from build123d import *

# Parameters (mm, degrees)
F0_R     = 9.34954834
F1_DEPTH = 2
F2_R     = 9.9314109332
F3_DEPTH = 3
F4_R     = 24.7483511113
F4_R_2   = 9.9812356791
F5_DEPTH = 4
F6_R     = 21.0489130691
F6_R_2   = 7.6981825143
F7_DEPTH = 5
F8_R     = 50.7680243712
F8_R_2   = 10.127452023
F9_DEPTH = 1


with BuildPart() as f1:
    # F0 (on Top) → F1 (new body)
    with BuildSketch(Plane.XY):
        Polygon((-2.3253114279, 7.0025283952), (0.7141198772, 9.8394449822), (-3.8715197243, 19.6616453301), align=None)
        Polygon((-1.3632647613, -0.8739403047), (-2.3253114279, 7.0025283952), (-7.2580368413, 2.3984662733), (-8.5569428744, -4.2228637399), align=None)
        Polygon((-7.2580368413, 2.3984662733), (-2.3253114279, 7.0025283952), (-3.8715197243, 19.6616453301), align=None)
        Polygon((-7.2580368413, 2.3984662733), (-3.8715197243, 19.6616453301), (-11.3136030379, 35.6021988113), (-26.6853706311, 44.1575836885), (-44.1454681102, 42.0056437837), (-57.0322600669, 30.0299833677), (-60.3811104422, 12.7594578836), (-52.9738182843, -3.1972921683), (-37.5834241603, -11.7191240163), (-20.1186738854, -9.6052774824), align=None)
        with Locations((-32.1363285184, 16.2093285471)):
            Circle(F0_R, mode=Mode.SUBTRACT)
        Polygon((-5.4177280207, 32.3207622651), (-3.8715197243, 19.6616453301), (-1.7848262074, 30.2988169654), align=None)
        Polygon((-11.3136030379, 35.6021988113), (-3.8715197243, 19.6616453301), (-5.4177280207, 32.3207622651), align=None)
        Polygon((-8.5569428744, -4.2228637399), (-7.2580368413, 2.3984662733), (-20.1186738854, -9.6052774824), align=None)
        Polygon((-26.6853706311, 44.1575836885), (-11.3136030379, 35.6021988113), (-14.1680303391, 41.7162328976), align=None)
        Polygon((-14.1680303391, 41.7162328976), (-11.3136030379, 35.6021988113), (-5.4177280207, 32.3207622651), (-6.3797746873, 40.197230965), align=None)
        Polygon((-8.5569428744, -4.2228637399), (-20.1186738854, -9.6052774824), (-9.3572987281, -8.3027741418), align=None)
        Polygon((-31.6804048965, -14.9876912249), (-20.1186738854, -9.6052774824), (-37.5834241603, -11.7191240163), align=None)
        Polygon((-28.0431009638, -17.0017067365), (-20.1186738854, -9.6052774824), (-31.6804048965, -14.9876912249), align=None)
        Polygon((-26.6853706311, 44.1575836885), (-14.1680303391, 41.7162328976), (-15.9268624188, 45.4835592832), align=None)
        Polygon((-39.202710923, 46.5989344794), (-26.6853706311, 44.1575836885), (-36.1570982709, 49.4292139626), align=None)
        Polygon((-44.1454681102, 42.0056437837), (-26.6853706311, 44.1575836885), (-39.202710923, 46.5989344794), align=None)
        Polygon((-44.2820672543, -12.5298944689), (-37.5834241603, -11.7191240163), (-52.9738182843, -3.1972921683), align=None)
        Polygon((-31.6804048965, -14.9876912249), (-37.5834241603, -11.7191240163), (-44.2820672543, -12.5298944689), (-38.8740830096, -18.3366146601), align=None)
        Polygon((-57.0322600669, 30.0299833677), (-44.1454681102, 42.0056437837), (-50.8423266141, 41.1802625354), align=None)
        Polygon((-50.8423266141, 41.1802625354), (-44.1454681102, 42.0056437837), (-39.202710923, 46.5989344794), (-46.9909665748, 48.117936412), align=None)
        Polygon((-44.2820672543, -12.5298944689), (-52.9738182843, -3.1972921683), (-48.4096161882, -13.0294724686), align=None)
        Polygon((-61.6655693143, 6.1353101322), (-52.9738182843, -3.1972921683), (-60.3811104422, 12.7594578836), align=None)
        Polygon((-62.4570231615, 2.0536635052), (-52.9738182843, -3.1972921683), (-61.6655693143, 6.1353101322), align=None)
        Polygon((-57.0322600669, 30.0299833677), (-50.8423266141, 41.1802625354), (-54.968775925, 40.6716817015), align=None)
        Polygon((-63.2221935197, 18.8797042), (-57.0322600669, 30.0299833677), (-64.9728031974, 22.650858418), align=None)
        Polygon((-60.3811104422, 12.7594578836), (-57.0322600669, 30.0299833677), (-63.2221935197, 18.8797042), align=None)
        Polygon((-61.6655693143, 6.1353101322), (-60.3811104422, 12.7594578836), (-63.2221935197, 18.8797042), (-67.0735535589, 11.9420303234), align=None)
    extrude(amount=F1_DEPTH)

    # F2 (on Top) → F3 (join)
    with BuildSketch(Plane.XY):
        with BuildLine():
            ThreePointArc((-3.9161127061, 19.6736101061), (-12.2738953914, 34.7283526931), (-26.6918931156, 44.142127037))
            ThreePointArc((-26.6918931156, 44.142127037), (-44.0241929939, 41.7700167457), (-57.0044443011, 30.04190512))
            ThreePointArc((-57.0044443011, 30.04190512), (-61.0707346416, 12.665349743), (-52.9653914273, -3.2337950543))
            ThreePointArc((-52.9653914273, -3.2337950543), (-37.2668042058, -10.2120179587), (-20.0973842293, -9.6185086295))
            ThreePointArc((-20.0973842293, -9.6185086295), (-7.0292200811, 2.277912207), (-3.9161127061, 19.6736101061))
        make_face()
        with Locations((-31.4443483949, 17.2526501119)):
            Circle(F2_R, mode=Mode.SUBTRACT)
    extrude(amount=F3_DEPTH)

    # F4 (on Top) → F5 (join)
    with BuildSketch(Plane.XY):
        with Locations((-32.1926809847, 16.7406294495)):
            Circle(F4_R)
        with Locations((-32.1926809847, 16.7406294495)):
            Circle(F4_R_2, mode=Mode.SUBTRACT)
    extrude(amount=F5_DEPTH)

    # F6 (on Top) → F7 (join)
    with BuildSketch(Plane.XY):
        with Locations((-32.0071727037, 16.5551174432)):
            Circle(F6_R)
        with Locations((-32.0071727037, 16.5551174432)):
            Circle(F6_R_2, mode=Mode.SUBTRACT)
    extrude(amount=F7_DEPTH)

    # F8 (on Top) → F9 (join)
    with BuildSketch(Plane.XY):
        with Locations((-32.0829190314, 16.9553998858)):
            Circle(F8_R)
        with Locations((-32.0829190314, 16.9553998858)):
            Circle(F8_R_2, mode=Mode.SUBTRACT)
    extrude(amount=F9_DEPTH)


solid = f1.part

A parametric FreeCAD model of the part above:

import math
import FreeCAD as App
import Part
import Sketcher

doc = App.newDocument("Part")
params = doc.addObject("Spreadsheet::Sheet", "Params")
for row, (alias, value) in enumerate([
    ("pad1_length", "2 mm"),
    ("pad2_length", "3 mm"),
    ("pad3_length", "4 mm"),
    ("pad4_length", "5 mm"),
    ("pad5_length", "1 mm"),
], start=1):
    params.set(f"A{row}", alias)
    params.set(f"B{row}", "=" + value)
    params.setAlias(f"B{row}", alias)

body = doc.addObject("PartDesign::Body", "Body")

sketch1 = doc.addObject("Sketcher::SketchObject", "Sketch")
body.addObject(sketch1)
sketch1.AttachmentSupport = (doc.XY_Plane, [""])
sketch1.MapMode = "FlatFace"
sketch1.addGeometry([
    Part.LineSegment(App.Vector(-2.325311, 7.002528, 0), App.Vector(0.71412, 9.839445, 0)),
    Part.LineSegment(App.Vector(0.71412, 9.839445, 0), App.Vector(-3.87152, 19.661645, 0)),
    Part.LineSegment(App.Vector(-3.87152, 19.661645, 0), App.Vector(-1.784826, 30.298817, 0)),
    Part.LineSegment(App.Vector(-1.784826, 30.298817, 0), App.Vector(-5.417728, 32.320762, 0)),
    Part.LineSegment(App.Vector(-5.417728, 32.320762, 0), App.Vector(-6.379775, 40.197231, 0)),
    Part.LineSegment(App.Vector(-6.379775, 40.197231, 0), App.Vector(-14.16803, 41.716233, 0)),
    Part.LineSegment(App.Vector(-14.16803, 41.716233, 0), App.Vector(-15.926862, 45.483559, 0)),
    Part.LineSegment(App.Vector(-15.926862, 45.483559, 0), App.Vector(-26.685371, 44.157584, 0)),
    Part.LineSegment(App.Vector(-26.685371, 44.157584, 0), App.Vector(-36.157098, 49.429214, 0)),
    Part.LineSegment(App.Vector(-36.157098, 49.429214, 0), App.Vector(-39.202711, 46.598934, 0)),
    Part.LineSegment(App.Vector(-39.202711, 46.598934, 0), App.Vector(-46.990967, 48.117936, 0)),
    Part.LineSegment(App.Vector(-46.990967, 48.117936, 0), App.Vector(-50.842327, 41.180263, 0)),
    Part.LineSegment(App.Vector(-50.842327, 41.180263, 0), App.Vector(-54.968776, 40.671682, 0)),
    Part.LineSegment(App.Vector(-54.968776, 40.671682, 0), App.Vector(-57.03226, 30.029983, 0)),
    Part.LineSegment(App.Vector(-57.03226, 30.029983, 0), App.Vector(-64.972803, 22.650858, 0)),
    Part.LineSegment(App.Vector(-64.972803, 22.650858, 0), App.Vector(-63.222194, 18.879704, 0)),
    Part.LineSegment(App.Vector(-63.222194, 18.879704, 0), App.Vector(-67.073554, 11.94203, 0)),
    Part.LineSegment(App.Vector(-67.073554, 11.94203, 0), App.Vector(-61.665569, 6.13531, 0)),
    Part.LineSegment(App.Vector(-61.665569, 6.13531, 0), App.Vector(-62.457023, 2.053664, 0)),
    Part.LineSegment(App.Vector(-62.457023, 2.053664, 0), App.Vector(-52.973818, -3.197292, 0)),
    Part.LineSegment(App.Vector(-52.973818, -3.197292, 0), App.Vector(-48.409616, -13.029472, 0)),
    Part.LineSegment(App.Vector(-48.409616, -13.029472, 0), App.Vector(-44.282067, -12.529894, 0)),
    Part.LineSegment(App.Vector(-44.282067, -12.529894, 0), App.Vector(-38.874083, -18.336615, 0)),
    Part.LineSegment(App.Vector(-38.874083, -18.336615, 0), App.Vector(-31.680405, -14.987691, 0)),
    Part.LineSegment(App.Vector(-31.680405, -14.987691, 0), App.Vector(-28.043101, -17.001707, 0)),
    Part.LineSegment(App.Vector(-28.043101, -17.001707, 0), App.Vector(-20.118674, -9.605277, 0)),
    Part.LineSegment(App.Vector(-20.118674, -9.605277, 0), App.Vector(-9.357299, -8.302774, 0)),
    Part.LineSegment(App.Vector(-9.357299, -8.302774, 0), App.Vector(-8.556943, -4.222864, 0)),
    Part.LineSegment(App.Vector(-8.556943, -4.222864, 0), App.Vector(-1.363265, -0.87394, 0)),
    Part.LineSegment(App.Vector(-1.363265, -0.87394, 0), App.Vector(-2.325311, 7.002528, 0)),
    Part.Circle(App.Vector(-32.136329, 16.209329, 0), App.Vector(0, 0, 1), 9.349548),
], False)
sketch1.addConstraint([
    Sketcher.Constraint("Coincident", 0, 2, 1, 1),
    Sketcher.Constraint("Coincident", 1, 2, 2, 1),
    Sketcher.Constraint("Coincident", 2, 2, 3, 1),
    Sketcher.Constraint("Coincident", 3, 2, 4, 1),
    Sketcher.Constraint("Coincident", 4, 2, 5, 1),
    Sketcher.Constraint("Coincident", 5, 2, 6, 1),
    Sketcher.Constraint("Coincident", 6, 2, 7, 1),
    Sketcher.Constraint("Coincident", 7, 2, 8, 1),
    Sketcher.Constraint("Coincident", 8, 2, 9, 1),
    Sketcher.Constraint("Coincident", 9, 2, 10, 1),
    Sketcher.Constraint("Coincident", 10, 2, 11, 1),
    Sketcher.Constraint("Coincident", 11, 2, 12, 1),
    Sketcher.Constraint("Coincident", 12, 2, 13, 1),
    Sketcher.Constraint("Coincident", 13, 2, 14, 1),
    Sketcher.Constraint("Coincident", 14, 2, 15, 1),
    Sketcher.Constraint("Coincident", 15, 2, 16, 1),
    Sketcher.Constraint("Coincident", 16, 2, 17, 1),
    Sketcher.Constraint("Coincident", 17, 2, 18, 1),
    Sketcher.Constraint("Coincident", 18, 2, 19, 1),
    Sketcher.Constraint("Coincident", 19, 2, 20, 1),
    Sketcher.Constraint("Coincident", 20, 2, 21, 1),
    Sketcher.Constraint("Coincident", 21, 2, 22, 1),
    Sketcher.Constraint("Coincident", 22, 2, 23, 1),
    Sketcher.Constraint("Coincident", 23, 2, 24, 1),
    Sketcher.Constraint("Coincident", 24, 2, 25, 1),
    Sketcher.Constraint("Coincident", 25, 2, 26, 1),
    Sketcher.Constraint("Coincident", 26, 2, 27, 1),
    Sketcher.Constraint("Coincident", 27, 2, 28, 1),
    Sketcher.Constraint("Coincident", 28, 2, 29, 1),
    Sketcher.Constraint("Coincident", 29, 2, 0, 1),
    Sketcher.Constraint("Parallel", 1, 6),
    Sketcher.Constraint("Parallel", 3, 8),
    Sketcher.Constraint("Parallel", 5, 10),
    Sketcher.Constraint("Parallel", 7, 12),
    Sketcher.Constraint("Parallel", 9, 14),
    Sketcher.Constraint("Parallel", 11, 16),
    Sketcher.Constraint("Parallel", 13, 18),
    Sketcher.Constraint("Parallel", 15, 20),
    Sketcher.Constraint("Parallel", 17, 22),
    Sketcher.Constraint("Parallel", 19, 24),
    Sketcher.Constraint("Parallel", 0, 25),
    Sketcher.Constraint("Parallel", 21, 26),
    Sketcher.Constraint("Parallel", 2, 27),
    Sketcher.Constraint("Parallel", 23, 28),
    Sketcher.Constraint("Parallel", 4, 29),
    Sketcher.Constraint("Equal", 1, 2),
    Sketcher.Constraint("Equal", 0, 3),
    Sketcher.Constraint("Equal", 4, 5),
    Sketcher.Constraint("Equal", 3, 6),
    Sketcher.Constraint("Equal", 2, 7),
    Sketcher.Constraint("Equal", 7, 8),
    Sketcher.Constraint("Equal", 6, 9),
    Sketcher.Constraint("Equal", 5, 10),
    Sketcher.Constraint("Equal", 10, 11),
    Sketcher.Constraint("Equal", 9, 12),
    Sketcher.Constraint("Equal", 8, 13),
    Sketcher.Constraint("Equal", 13, 14),
    Sketcher.Constraint("Equal", 12, 15),
    Sketcher.Constraint("Equal", 11, 16),
    Sketcher.Constraint("Equal", 16, 17),
    Sketcher.Constraint("Equal", 15, 18),
    Sketcher.Constraint("Equal", 14, 19),
    Sketcher.Constraint("Equal", 19, 20),
    Sketcher.Constraint("Equal", 18, 21),
    Sketcher.Constraint("Equal", 17, 22),
    Sketcher.Constraint("Equal", 22, 23),
    Sketcher.Constraint("Equal", 21, 24),
    Sketcher.Constraint("Equal", 20, 25),
    Sketcher.Constraint("Equal", 25, 26),
    Sketcher.Constraint("Equal", 24, 27),
    Sketcher.Constraint("Equal", 23, 28),
    Sketcher.Constraint("Equal", 28, 29),
    Sketcher.Constraint("Diameter", 30, 18.699097),
    Sketcher.Constraint("DistanceY", 4, 2, 5, 2, 1.519002),
    Sketcher.Constraint("DistanceX", 11, 2, 30, 3, 18.705998),
    Sketcher.Constraint("DistanceX", 8, 2, -1, 1, 36.157098),
    Sketcher.Constraint("DistanceX", 24, 2, -1, 1, 28.043101),
    Sketcher.Constraint("DistanceX", 26, 2, -1, 1, 9.357299),
    Sketcher.Constraint("DistanceY", 0, 2, 1, 2, 9.8222),
    Sketcher.Constraint("DistanceX", 3, 2, 2, 2, 3.632902),
    Sketcher.Constraint("DistanceX", 30, 3, 3, 2, 26.7186),
    Sketcher.Constraint("DistanceX", 30, 3, 5, 2, 17.968298),
    Sketcher.Constraint("DistanceY", 5, 2, 9, 2, 4.882702),
    Sketcher.Constraint("DistanceY", 12, 2, 7, 2, 3.485902),
    Sketcher.Constraint("DistanceY", 13, 2, 12, 2, 10.641698),
    Sketcher.Constraint("DistanceY", 20, 2, 30, 3, 29.238801),
    Sketcher.Constraint("DistanceY", 23, 2, 19, 2, 11.790399),
    Sketcher.Constraint("DistanceX", 30, 3, -1, 1, 32.136329),
    Sketcher.Constraint("DistanceY", -1, 1, 30, 3, 16.209329),
    Sketcher.Constraint("DistanceX", -1, 1, 0, 2, 0.71412),
    Sketcher.Constraint("DistanceX", 1, 2, -1, 1, 3.87152),
    Sketcher.Constraint("DistanceY", -1, 1, 4, 2, 40.197231),
    Sketcher.Constraint("DistanceX", 9, 2, -1, 1, 39.202711),
])
pad1 = doc.addObject("PartDesign::Pad", "Pad")
body.addObject(pad1)
pad1.Profile = sketch1
pad1.setExpression("Length", "Params.pad1_length")

sketch2 = doc.addObject("Sketcher::SketchObject", "Sketch001")
body.addObject(sketch2)
sketch2.AttachmentSupport = (doc.XY_Plane, [""])
sketch2.MapMode = "FlatFace"
sketch2.addGeometry([
    Part.ArcOfCircle(Part.Circle(App.Vector(-38.487261, 10.328433, 0), App.Vector(0, 0, 1), 35.811962), math.radians(15.126515), math.radians(70.769489)),
    Part.ArcOfCircle(Part.Circle(App.Vector(-31.515338, 14.878573, 0), App.Vector(0, 0, 1), 29.658408), math.radians(80.640225), math.radians(149.251815)),
    Part.ArcOfCircle(Part.Circle(App.Vector(-35.284942, 15.795267, 0), App.Vector(0, 0, 1), 25.975055), math.radians(146.737625), math.radians(227.103952)),
    Part.ArcOfCircle(Part.Circle(App.Vector(-29.970272, 27.349962, 0), App.Vector(0, 0, 1), 38.264105), math.radians(-126.93854), math.radians(-75.047418)),
    Part.ArcOfCircle(Part.Circle(App.Vector(-31.065531, 15.555821, 0), App.Vector(0, 0, 1), 27.459918), math.radians(-66.457833), math.radians(8.624397)),
    Part.Circle(App.Vector(-31.444348, 17.25265, 0), App.Vector(0, 0, 1), 9.931411),
], False)
sketch2.addConstraint([
    Sketcher.Constraint("Coincident", 0, 2, 1, 1),
    Sketcher.Constraint("Coincident", 1, 2, 2, 1),
    Sketcher.Constraint("Coincident", 2, 2, 3, 1),
    Sketcher.Constraint("Coincident", 3, 2, 4, 1),
    Sketcher.Constraint("Coincident", 4, 2, 0, 1),
    Sketcher.Constraint("Diameter", 5, 19.862822),
    Sketcher.Constraint("Radius", 1, 29.658408),
    Sketcher.Constraint("Radius", 4, 27.459918),
    Sketcher.Constraint("Radius", 0, 35.811962),
    Sketcher.Constraint("Radius", 2, 25.975055),
    Sketcher.Constraint("Radius", 3, 38.264105),
    Sketcher.Constraint("DistanceX", 0, 3, -1, 1, 38.487261),
    Sketcher.Constraint("DistanceX", 2, 3, -1, 1, 35.284942),
    Sketcher.Constraint("DistanceX", 3, 3, -1, 1, 29.970272),
    Sketcher.Constraint("DistanceX", 4, 3, -1, 1, 31.065531),
    Sketcher.Constraint("DistanceY", -1, 1, 4, 3, 15.555821),
    Sketcher.Constraint("DistanceX", 5, 3, -1, 1, 31.444348),
    Sketcher.Constraint("DistanceY", -1, 1, 5, 3, 17.25265),
    Sketcher.Constraint("DistanceX", 2, 2, -1, 1, 52.965391),
    Sketcher.Constraint("DistanceY", 3, 2, -1, 1, 9.618509),
    Sketcher.Constraint("DistanceY", -1, 1, 4, 2, 19.67361),
    Sketcher.Constraint("DistanceY", 0, 3, 1, 3, 4.550141),
    Sketcher.Constraint("DistanceX", 1, 3, 5, 3, 0.070989),
])
pad2 = doc.addObject("PartDesign::Pad", "Pad001")
body.addObject(pad2)
pad2.Profile = sketch2
pad2.setExpression("Length", "Params.pad2_length")

sketch3 = doc.addObject("Sketcher::SketchObject", "Sketch002")
body.addObject(sketch3)
sketch3.AttachmentSupport = (doc.XY_Plane, [""])
sketch3.MapMode = "FlatFace"
sketch3.addGeometry([
    Part.Circle(App.Vector(-32.192681, 16.740629, 0), App.Vector(0, 0, 1), 24.748351),
    Part.Circle(App.Vector(-32.192681, 16.740629, 0), App.Vector(0, 0, 1), 9.981236),
], False)
sketch3.addConstraint([
    Sketcher.Constraint("Coincident", 1, 3, 0, 3),
    Sketcher.Constraint("Diameter", 1, 19.962471),
    Sketcher.Constraint("Diameter", 0, 49.496702),
    Sketcher.Constraint("DistanceX", 0, 3, -1, 1, 32.192681),
    Sketcher.Constraint("DistanceY", -1, 1, 0, 3, 16.740629),
])
pad3 = doc.addObject("PartDesign::Pad", "Pad002")
body.addObject(pad3)
pad3.Profile = sketch3
pad3.setExpression("Length", "Params.pad3_length")

sketch4 = doc.addObject("Sketcher::SketchObject", "Sketch003")
body.addObject(sketch4)
sketch4.AttachmentSupport = (doc.XY_Plane, [""])
sketch4.MapMode = "FlatFace"
sketch4.addGeometry([
    Part.Circle(App.Vector(-32.007173, 16.555117, 0), App.Vector(0, 0, 1), 21.048913),
    Part.Circle(App.Vector(-32.007173, 16.555117, 0), App.Vector(0, 0, 1), 7.698183),
], False)
sketch4.addConstraint([
    Sketcher.Constraint("Coincident", 1, 3, 0, 3),
    Sketcher.Constraint("Diameter", 0, 42.097826),
    Sketcher.Constraint("Diameter", 1, 15.396365),
    Sketcher.Constraint("DistanceX", 0, 3, -1, 1, 32.007173),
    Sketcher.Constraint("DistanceY", -1, 1, 0, 3, 16.555117),
])
pad4 = doc.addObject("PartDesign::Pad", "Pad003")
body.addObject(pad4)
pad4.Profile = sketch4
pad4.setExpression("Length", "Params.pad4_length")

sketch5 = doc.addObject("Sketcher::SketchObject", "Sketch004")
body.addObject(sketch5)
sketch5.AttachmentSupport = (doc.XY_Plane, [""])
sketch5.MapMode = "FlatFace"
sketch5.addGeometry([
    Part.Circle(App.Vector(-32.082919, 16.9554, 0), App.Vector(0, 0, 1), 50.768024),
    Part.Circle(App.Vector(-32.082919, 16.9554, 0), App.Vector(0, 0, 1), 10.127452),
], False)
sketch5.addConstraint([
    Sketcher.Constraint("Coincident", 1, 3, 0, 3),
    Sketcher.Constraint("Diameter", 0, 101.536049),
    Sketcher.Constraint("Diameter", 1, 20.254904),
    Sketcher.Constraint("DistanceY", -1, 1, 0, 3, 16.9554),
    Sketcher.Constraint("DistanceX", 0, 3, -1, 1, 32.082919),
])
pad5 = doc.addObject("PartDesign::Pad", "Pad004")
body.addObject(pad5)
pad5.Profile = sketch5
pad5.setExpression("Length", "Params.pad5_length")

doc.recompute()
